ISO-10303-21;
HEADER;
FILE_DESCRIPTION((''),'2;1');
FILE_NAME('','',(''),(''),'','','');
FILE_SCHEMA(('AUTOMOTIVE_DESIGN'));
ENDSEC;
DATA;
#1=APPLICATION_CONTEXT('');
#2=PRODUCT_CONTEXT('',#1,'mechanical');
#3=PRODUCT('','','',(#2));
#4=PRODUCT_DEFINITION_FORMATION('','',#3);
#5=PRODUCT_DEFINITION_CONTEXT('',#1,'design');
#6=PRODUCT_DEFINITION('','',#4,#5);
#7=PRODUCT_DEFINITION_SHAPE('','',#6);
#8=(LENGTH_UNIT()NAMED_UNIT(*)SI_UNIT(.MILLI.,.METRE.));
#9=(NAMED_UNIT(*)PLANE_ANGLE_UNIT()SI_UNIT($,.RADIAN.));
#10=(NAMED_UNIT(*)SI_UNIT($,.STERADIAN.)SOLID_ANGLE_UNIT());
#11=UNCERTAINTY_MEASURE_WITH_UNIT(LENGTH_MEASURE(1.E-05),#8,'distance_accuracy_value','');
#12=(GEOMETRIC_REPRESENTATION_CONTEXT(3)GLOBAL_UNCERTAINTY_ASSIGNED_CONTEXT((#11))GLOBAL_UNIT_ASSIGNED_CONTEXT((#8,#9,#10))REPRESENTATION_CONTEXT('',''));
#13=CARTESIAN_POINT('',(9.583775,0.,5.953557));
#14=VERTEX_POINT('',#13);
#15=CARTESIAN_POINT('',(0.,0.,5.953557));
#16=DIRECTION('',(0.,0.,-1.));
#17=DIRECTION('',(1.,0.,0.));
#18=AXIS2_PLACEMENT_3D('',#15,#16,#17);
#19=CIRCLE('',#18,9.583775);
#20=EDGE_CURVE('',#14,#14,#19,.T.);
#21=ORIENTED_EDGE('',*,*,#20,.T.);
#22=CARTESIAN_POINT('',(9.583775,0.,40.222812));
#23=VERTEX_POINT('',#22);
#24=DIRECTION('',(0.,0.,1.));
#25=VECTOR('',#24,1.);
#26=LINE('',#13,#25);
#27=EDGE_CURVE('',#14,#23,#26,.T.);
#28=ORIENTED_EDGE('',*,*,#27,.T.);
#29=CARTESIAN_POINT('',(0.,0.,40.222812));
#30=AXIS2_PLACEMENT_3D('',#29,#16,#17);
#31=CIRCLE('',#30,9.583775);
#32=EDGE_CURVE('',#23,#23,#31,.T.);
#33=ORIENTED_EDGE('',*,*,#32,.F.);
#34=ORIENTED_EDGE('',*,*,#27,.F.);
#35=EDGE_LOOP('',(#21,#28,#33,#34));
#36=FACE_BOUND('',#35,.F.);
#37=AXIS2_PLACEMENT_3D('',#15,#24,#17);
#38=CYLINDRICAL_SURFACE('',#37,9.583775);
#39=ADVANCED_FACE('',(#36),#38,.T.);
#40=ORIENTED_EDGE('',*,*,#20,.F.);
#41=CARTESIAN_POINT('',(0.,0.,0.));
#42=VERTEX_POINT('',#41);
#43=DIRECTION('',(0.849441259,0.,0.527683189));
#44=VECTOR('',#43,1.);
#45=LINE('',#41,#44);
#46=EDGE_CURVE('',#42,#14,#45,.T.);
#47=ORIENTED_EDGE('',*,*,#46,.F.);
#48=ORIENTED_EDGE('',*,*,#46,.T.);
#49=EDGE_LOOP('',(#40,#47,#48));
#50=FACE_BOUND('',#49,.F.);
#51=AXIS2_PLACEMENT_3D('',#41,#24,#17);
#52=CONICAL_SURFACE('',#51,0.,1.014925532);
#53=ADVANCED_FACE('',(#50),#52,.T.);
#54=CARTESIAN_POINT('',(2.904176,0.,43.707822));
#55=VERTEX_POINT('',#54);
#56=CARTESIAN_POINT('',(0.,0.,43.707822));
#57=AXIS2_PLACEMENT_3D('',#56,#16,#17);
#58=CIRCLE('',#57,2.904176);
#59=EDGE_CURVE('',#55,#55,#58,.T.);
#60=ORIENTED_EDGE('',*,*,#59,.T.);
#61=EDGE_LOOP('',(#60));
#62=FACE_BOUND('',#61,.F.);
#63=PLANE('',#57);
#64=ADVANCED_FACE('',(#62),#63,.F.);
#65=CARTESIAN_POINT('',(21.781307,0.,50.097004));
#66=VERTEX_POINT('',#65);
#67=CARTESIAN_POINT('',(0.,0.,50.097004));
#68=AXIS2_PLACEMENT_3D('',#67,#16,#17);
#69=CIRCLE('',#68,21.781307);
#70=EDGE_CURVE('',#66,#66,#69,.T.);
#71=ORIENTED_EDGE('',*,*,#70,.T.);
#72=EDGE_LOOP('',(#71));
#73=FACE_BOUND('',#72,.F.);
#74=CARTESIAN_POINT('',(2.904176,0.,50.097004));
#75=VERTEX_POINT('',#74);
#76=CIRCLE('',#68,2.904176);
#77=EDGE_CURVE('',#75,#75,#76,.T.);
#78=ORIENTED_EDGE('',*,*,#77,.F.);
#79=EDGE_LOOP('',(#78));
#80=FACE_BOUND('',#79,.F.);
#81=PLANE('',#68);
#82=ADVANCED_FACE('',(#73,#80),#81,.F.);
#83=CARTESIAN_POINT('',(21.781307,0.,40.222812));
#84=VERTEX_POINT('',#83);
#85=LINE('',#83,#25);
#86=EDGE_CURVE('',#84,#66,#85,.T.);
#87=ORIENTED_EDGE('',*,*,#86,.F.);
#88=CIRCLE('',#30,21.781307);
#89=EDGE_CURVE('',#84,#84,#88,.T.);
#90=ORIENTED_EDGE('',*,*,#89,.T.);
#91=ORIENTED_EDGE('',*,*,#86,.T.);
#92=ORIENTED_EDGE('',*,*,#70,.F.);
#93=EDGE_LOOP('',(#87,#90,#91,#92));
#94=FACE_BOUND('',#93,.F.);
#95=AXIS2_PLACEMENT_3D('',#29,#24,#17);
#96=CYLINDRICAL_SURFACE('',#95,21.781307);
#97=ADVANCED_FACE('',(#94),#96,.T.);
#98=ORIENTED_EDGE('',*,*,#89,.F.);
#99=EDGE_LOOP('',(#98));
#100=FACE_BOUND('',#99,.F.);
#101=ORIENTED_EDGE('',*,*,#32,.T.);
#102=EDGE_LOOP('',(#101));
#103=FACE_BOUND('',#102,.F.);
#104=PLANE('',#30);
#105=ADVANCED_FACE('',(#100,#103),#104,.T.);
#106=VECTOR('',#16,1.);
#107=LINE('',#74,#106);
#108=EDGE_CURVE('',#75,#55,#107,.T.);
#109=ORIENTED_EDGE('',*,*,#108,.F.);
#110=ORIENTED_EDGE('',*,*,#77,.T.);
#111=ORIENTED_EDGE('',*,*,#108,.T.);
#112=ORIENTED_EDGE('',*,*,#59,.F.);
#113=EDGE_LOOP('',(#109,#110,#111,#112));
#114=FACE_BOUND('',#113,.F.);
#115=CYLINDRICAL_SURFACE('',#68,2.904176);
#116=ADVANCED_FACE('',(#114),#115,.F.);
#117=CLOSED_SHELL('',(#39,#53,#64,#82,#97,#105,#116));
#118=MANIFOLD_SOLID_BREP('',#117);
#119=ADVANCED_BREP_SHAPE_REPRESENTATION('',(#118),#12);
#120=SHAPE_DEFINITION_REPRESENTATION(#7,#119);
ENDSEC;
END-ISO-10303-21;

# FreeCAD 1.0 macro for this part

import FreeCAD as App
import Part
import Sketcher

V = App.Vector
Q = App.Units.Quantity

doc = App.newDocument("Part")
params = doc.addObject("Spreadsheet::Sheet", "Params")
for row, (alias, value) in enumerate([
    ("revolution_angle", "360 deg"),
], start=1):
    params.set(f"A{row}", alias)
    params.set(f"B{row}", "=" + value)
    params.setAlias(f"B{row}", alias)

body = doc.addObject("PartDesign::Body", "Body")

sketch1 = body.newObject("Sketcher::SketchObject", "Sketch")
sketch1.AttachmentSupport = (doc.getObject("XZ_Plane"), [""])
sketch1.MapMode = "FlatFace"
sketch1.addGeometry([
    Part.LineSegment(V(0, 43.7, 0), V(0, 0, 0)),
    Part.LineSegment(V(0, 0, 0), V(9.6, 6, 0)),
    Part.LineSegment(V(9.6, 6, 0), V(9.6, 40.2, 0)),
    Part.LineSegment(V(9.6, 40.2, 0), V(21.8, 40.2, 0)),
    Part.LineSegment(V(21.8, 40.2, 0), V(21.8, 50.1, 0)),
    Part.LineSegment(V(21.8, 50.1, 0), V(2.9, 50.1, 0)),
    Part.LineSegment(V(2.9, 50.1, 0), V(2.9, 43.7, 0)),
    Part.LineSegment(V(2.9, 43.7, 0), V(0, 43.7, 0)),
], False)
sketch1.addConstraint([
    Sketcher.Constraint("Coincident", 0, 2, 1, 1),
    Sketcher.Constraint("Coincident", 1, 2, 2, 1),
    Sketcher.Constraint("Coincident", 2, 2, 3, 1),
    Sketcher.Constraint("Coincident", 3, 2, 4, 1),
    Sketcher.Constraint("Coincident", 4, 2, 5, 1),
    Sketcher.Constraint("Coincident", 5, 2, 6, 1),
    Sketcher.Constraint("Coincident", 6, 2, 7, 1),
    Sketcher.Constraint("Coincident", 7, 2, 0, 1),
    Sketcher.Constraint("Vertical", 0),
    Sketcher.Constraint("Vertical", 2),
    Sketcher.Constraint("Horizontal", 3),
    Sketcher.Constraint("Vertical", 4),
    Sketcher.Constraint("Horizontal", 5),
    Sketcher.Constraint("Vertical", 6),
    Sketcher.Constraint("Horizontal", 7),
    Sketcher.Constraint("Coincident", 0, 2, -1, 1),
    Sketcher.Constraint("DistanceX", 5, 2, 5, 1, Q("18.877131 mm")),
    Sketcher.Constraint("DistanceY", 6, 2, 6, 1, Q("6.389182 mm")),
    Sketcher.Constraint("DistanceX", 5, 2, 2, 2, Q("6.679599 mm")),
    Sketcher.Constraint("DistanceX", 7, 2, 7, 1, Q("2.904176 mm")),
    Sketcher.Constraint("DistanceY", 0, 2, 0, 1, Q("43.707822 mm")),
    Sketcher.Constraint("DistanceY", 2, 1, 2, 2, Q("34.269255 mm")),
    Sketcher.Constraint("DistanceY", 4, 1, 4, 2, Q("9.874192 mm")),
])
revolution = body.newObject("PartDesign::Revolution", "Revolution")
revolution.Profile = sketch1
revolution.ReferenceAxis = (sketch1, ["V_Axis"])
revolution.setExpression("Angle", "Params.revolution_angle")

doc.recompute()
